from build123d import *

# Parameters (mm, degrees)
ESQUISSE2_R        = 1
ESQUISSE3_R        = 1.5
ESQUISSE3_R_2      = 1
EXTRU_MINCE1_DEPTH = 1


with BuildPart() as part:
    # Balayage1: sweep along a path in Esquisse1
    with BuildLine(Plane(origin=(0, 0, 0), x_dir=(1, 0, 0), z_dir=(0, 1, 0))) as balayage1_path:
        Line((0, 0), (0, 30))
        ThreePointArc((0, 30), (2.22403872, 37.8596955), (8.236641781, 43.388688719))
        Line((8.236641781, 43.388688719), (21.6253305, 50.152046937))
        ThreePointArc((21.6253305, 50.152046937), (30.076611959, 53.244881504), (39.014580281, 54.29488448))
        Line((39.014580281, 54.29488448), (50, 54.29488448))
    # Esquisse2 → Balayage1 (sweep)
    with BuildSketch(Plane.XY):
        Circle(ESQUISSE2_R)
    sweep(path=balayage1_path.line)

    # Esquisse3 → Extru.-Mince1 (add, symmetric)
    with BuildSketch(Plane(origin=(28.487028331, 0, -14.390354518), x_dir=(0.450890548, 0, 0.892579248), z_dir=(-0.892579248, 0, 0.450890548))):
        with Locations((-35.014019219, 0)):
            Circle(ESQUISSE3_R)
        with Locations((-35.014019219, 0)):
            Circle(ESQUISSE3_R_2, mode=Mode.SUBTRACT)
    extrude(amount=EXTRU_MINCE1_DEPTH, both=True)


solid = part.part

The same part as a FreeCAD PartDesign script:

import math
import FreeCAD as App
import Part
import Sketcher

V = App.Vector

doc = App.newDocument("Part")
body = doc.addObject("PartDesign::Body", "Body")

# Sketch on XY plane
sketch1 = doc.addObject("Sketcher::SketchObject", "Sketch")
body.addObject(sketch1)
sketch1.AttachmentSupport = (doc.XY_Plane, [""])
sketch1.MapMode = "FlatFace"
sketch1.addGeometry(Part.Circle(V(0, 0, 0), V(0, 0, 1), 1), False)
sketch1.addConstraint(Sketcher.Constraint("Coincident", 0, 3, -1, 1))
sketch1.addConstraint(Sketcher.Constraint("Diameter", 0, 2.0))

# Sketch on XZ plane
sketch2 = doc.addObject("Sketcher::SketchObject", "Sketch001")
body.addObject(sketch2)
sketch2.AttachmentSupport = (doc.XZ_Plane, [""])
sketch2.MapMode = "FlatFace"
sketch2.addGeometry(Part.LineSegment(V(0, 0, 0), V(0, -30, 0)), False)
sketch2.addGeometry(Part.ArcOfCircle(Part.Circle(V(15, -30, 0), V(0, 0, 1), 15), math.radians(-180), math.radians(-116.800835)), False)
sketch2.addGeometry(Part.LineSegment(V(8.236642, -43.388689, 0), V(21.625331, -50.152047, 0)), False)
sketch2.addGeometry(Part.ArcOfCircle(Part.Circle(V(39.01458, -15.72843, 0), V(0, 0, 1), 38.566454), math.radians(-116.800835), math.radians(-90)), False)
sketch2.addGeometry(Part.LineSegment(V(39.01458, -54.294884, 0), V(50, -54.294884, 0)), False)
sketch2.addConstraint(Sketcher.Constraint("Tangent", 0, 2, 1, 1))
sketch2.addConstraint(Sketcher.Constraint("Tangent", 1, 2, 2, 1))
sketch2.addConstraint(Sketcher.Constraint("Tangent", 2, 2, 3, 1))
sketch2.addConstraint(Sketcher.Constraint("Tangent", 3, 2, 4, 1))
sketch2.addConstraint(Sketcher.Constraint("Vertical", 0))
sketch2.addConstraint(Sketcher.Constraint("Horizontal", 4))
sketch2.addConstraint(Sketcher.Constraint("Coincident", 0, 1, -1, 1))
sketch2.addConstraint(Sketcher.Constraint("Radius", 1, 15.0))
sketch2.addConstraint(Sketcher.Constraint("DistanceY", 0, 2, 0, 1, 30.0))
sketch2.addConstraint(Sketcher.Constraint("Distance", 2, 15.0))
sketch2.addConstraint(Sketcher.Constraint("DistanceX", -1, 1, 4, 2, 50.0))
sketch2.addConstraint(Sketcher.Constraint("Radius", 3, 38.566454))
sketch2.addConstraint(Sketcher.Constraint("DistanceX", 4, 1, 4, 2, 10.98542))
doc.recompute()

additivepipe = doc.addObject("PartDesign::AdditivePipe", "AdditivePipe")
body.addObject(additivepipe)
additivepipe.Profile = sketch1
additivepipe.Spine = (sketch2, ["Edge1", "Edge2", "Edge3", "Edge4", "Edge5"])

# Sketch on an angled plane
sketch3 = doc.addObject("Sketcher::SketchObject", "Sketch002")
body.addObject(sketch3)
sketch3.Placement = App.Placement(V(28.487028, 0, -14.390355), App.Rotation(V(0.450890548, 0, 0.892579248), V(0, 1, 0), V(-0.892579248, 0, 0.450890548), "ZXY"))
sketch3.addGeometry(Part.Circle(V(-35.014019, 0, 0), V(0, 0, 1), 1.5), False)
sketch3.addGeometry(Part.Circle(V(-35.014019, 0, 0), V(0, 0, 1), 1), False)
sketch3.addConstraint(Sketcher.Constraint("Coincident", 1, 3, 0, 3))
sketch3.addConstraint(Sketcher.Constraint("PointOnObject", 0, 3, -1))
sketch3.addConstraint(Sketcher.Constraint("Diameter", 0, 3.0))
sketch3.addConstraint(Sketcher.Constraint("Diameter", 1, 2.0))
sketch3.addConstraint(Sketcher.Constraint("DistanceX", 0, 3, -1, 1, 35.014019))
pad1 = doc.addObject("PartDesign::Pad", "Pad")
body.addObject(pad1)
pad1.Profile = sketch3
pad1.Length = 2
pad1.Midplane = True

doc.recompute()
